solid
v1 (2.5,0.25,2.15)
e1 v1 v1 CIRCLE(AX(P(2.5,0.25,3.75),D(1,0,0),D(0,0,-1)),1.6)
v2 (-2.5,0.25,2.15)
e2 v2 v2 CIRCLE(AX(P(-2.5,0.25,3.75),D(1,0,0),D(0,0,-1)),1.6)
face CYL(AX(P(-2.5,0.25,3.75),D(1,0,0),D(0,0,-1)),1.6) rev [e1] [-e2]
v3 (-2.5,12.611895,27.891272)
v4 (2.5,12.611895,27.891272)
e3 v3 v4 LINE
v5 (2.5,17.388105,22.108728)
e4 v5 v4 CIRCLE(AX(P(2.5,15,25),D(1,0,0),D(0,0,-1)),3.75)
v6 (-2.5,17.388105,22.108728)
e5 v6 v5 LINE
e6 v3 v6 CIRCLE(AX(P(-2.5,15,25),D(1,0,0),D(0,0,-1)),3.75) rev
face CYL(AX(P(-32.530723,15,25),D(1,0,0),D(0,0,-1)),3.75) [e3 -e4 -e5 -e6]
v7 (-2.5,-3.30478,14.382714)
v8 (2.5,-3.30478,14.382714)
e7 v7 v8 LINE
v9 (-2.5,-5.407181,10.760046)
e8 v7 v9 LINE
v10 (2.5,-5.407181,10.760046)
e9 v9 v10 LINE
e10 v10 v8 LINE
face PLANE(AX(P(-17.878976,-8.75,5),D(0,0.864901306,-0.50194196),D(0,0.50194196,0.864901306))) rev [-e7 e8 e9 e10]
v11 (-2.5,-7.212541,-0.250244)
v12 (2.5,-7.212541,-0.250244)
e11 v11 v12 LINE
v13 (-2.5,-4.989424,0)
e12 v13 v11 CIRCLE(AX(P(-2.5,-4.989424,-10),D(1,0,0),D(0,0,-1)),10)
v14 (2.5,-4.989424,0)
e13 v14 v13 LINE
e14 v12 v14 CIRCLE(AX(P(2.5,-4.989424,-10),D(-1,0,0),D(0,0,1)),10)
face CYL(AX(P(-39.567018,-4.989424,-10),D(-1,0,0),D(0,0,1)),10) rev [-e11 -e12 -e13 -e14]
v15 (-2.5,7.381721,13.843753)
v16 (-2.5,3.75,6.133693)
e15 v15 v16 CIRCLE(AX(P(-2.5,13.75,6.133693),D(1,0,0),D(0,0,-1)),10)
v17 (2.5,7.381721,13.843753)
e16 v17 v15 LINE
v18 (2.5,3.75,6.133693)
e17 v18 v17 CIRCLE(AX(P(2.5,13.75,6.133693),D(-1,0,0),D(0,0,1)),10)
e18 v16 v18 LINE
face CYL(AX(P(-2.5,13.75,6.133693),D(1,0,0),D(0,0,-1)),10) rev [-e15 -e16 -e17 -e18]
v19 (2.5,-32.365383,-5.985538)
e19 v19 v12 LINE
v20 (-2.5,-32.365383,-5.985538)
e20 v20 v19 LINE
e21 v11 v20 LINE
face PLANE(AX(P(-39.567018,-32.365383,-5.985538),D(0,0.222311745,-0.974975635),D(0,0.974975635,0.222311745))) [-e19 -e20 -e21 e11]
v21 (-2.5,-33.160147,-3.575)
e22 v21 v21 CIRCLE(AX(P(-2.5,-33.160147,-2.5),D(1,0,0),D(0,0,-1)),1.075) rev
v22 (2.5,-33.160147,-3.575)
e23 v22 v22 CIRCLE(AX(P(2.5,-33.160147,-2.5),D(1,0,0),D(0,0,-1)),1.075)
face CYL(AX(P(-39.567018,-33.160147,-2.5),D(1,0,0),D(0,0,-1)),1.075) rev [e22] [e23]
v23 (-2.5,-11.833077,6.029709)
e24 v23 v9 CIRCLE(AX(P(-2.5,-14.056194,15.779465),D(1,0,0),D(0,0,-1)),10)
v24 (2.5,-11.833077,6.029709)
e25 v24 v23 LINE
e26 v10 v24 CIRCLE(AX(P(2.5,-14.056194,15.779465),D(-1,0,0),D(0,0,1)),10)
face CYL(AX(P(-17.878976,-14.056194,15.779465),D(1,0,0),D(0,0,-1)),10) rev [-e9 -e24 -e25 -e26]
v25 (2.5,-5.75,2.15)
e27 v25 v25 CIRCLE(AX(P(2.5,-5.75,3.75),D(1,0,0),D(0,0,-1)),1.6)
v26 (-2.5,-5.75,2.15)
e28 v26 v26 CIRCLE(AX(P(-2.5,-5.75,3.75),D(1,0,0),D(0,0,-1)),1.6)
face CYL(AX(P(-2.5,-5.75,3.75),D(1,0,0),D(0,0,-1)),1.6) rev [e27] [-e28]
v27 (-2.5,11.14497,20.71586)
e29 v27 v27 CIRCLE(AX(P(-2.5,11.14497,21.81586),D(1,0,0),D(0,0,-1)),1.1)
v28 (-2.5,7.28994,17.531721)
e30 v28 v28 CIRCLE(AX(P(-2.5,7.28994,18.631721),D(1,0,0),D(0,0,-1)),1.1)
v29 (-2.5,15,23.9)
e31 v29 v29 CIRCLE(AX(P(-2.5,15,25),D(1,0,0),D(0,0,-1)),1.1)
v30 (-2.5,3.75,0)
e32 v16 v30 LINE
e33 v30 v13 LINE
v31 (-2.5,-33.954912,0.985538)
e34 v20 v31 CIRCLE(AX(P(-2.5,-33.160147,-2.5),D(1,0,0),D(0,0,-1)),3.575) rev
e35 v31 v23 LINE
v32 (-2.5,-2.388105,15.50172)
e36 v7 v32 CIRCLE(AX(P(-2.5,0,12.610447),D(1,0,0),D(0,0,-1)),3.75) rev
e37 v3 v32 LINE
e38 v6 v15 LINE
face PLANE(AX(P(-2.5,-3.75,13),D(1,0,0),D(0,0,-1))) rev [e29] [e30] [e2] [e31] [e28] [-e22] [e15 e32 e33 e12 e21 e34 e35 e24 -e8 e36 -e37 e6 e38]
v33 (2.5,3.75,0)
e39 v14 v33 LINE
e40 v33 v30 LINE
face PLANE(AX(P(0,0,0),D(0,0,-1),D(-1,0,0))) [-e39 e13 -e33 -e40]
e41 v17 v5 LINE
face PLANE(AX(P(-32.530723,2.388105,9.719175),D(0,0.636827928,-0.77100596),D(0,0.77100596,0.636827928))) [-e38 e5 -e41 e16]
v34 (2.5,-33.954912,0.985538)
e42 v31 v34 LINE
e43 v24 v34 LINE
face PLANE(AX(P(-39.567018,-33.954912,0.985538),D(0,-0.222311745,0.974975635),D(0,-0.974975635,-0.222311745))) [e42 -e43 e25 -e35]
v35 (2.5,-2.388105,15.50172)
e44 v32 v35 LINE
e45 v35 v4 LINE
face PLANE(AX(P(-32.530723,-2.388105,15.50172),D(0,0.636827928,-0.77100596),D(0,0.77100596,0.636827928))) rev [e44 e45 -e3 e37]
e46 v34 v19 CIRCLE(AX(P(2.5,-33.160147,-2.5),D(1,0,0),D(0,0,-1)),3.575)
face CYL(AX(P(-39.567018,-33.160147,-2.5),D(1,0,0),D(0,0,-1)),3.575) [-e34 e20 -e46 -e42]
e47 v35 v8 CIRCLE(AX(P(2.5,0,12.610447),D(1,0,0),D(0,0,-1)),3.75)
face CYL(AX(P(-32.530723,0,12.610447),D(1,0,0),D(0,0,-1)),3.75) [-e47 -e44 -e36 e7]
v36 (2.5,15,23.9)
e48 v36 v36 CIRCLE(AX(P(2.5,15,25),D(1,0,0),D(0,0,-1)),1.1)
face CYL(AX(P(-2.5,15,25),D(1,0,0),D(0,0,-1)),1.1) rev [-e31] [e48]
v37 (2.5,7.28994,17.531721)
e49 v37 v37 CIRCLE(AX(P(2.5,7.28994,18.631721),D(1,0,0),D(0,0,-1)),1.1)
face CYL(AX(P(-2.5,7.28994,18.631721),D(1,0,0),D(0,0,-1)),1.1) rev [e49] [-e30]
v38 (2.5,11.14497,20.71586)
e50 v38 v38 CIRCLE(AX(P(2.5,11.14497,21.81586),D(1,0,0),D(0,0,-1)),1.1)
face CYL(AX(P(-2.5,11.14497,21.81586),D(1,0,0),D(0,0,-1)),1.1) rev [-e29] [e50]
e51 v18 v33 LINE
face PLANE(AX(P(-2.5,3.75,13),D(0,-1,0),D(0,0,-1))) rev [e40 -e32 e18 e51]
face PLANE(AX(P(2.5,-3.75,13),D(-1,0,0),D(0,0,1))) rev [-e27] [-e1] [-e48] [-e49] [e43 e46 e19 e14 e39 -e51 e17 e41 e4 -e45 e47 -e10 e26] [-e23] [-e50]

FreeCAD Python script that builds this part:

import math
import FreeCAD as App
import Part
import Sketcher

V = App.Vector
Q = App.Units.Quantity


def edges_at(feature, points):
    """Names of the edges that pass closest to the given points."""
    edges = feature.Shape.Edges
    near = lambda p: min(range(len(edges)), key=lambda i: edges[i].distToShape(Part.Vertex(*p))[0])
    return sorted({f"Edge{near(p) + 1}" for p in points})


def add_polygon(sketch, points):
    """Adds a closed chain of lines whose ends are joined by coincident constraints."""
    first, n = sketch.GeometryCount, len(points)
    for a, b in zip(points, points[1:] + points[:1]):
        sketch.addGeometry(Part.LineSegment(App.Vector(*a, 0), App.Vector(*b, 0)), False)
    for i in range(n):
        sketch.addConstraint(Sketcher.Constraint("Coincident", first + i, 2, first + (i + 1) % n, 1))

doc = App.newDocument("Part")
body = doc.addObject("PartDesign::Body", "Body")

# Sketch on XY plane
sketch1 = body.newObject("Sketcher::SketchObject", "Sketch")
sketch1.AttachmentSupport = (doc.getObject("XY_Plane"), [""])
sketch1.MapMode = "FlatFace"
add_polygon(sketch1, [(-2, 4), (-2, -4), (2, -4), (2, 4)])  # lines 0-3
sketch1.addConstraint(Sketcher.Constraint("Vertical", 0))
sketch1.addConstraint(Sketcher.Constraint("Horizontal", 1))
sketch1.addConstraint(Sketcher.Constraint("Vertical", 2))
sketch1.addConstraint(Sketcher.Constraint("Horizontal", 3))
sketch1.addConstraint(Sketcher.Constraint("Symmetric", 0, 2, 2, 2, -1, 1))
sketch1.addConstraint(Sketcher.Constraint("DistanceX", 1, 1, 1, 2, Q("5 mm")))
sketch1.addConstraint(Sketcher.Constraint("DistanceY", 0, 2, 0, 1, Q("7.5 mm")))
pad1 = body.newObject("PartDesign::Pad", "Pad")
pad1.Profile = sketch1
pad1.Length = 13

# Sketch on YZ plane
sketch2 = body.newObject("Sketcher::SketchObject", "Sketch001")
sketch2.AttachmentSupport = (doc.getObject("YZ_Plane"), [""])
sketch2.MapMode = "FlatFace"
sketch2.AttachmentOffset = App.Placement(V(0, 0, 2.5), App.Rotation())
sketch2.addGeometry(Part.LineSegment(V(12.6, 27.9, 0), V(-2.4, 15.5, 0)), False)
sketch2.addGeometry(Part.ArcOfCircle(Part.Circle(V(0, 12.6, 0), V(0, 0, 1), 3.8), math.radians(130), math.radians(310)), False)
sketch2.addGeometry(Part.LineSegment(V(2.4, 9.7, 0), V(17.4, 22.1, 0)), False)
sketch2.addGeometry(Part.ArcOfCircle(Part.Circle(V(15, 25, 0), V(0, 0, 1), 3.8), math.radians(-50), math.radians(130)), False)
sketch2.addConstraint(Sketcher.Constraint("Tangent", 0, 2, 1, 1))
sketch2.addConstraint(Sketcher.Constraint("Tangent", 1, 2, 2, 1))
sketch2.addConstraint(Sketcher.Constraint("Tangent", 2, 2, 3, 1))
sketch2.addConstraint(Sketcher.Constraint("Tangent", 3, 2, 0, 1))
sketch2.addConstraint(Sketcher.Constraint("Equal", 1, 3))
sketch2.addConstraint(Sketcher.Constraint("PointOnObject", 1, 3, -2))
sketch2.addConstraint(Sketcher.Constraint("Radius", 1, Q("3.75 mm")))
sketch2.addConstraint(Sketcher.Constraint("DistanceX", -1, 1, 3, 3, Q("15 mm")))
sketch2.addConstraint(Sketcher.Constraint("DistanceY", -1, 1, 3, 3, Q("25 mm")))
sketch2.addConstraint(Sketcher.Constraint("DistanceY", -1, 1, 0, 2, Q("15.50172 mm")))
pad2 = body.newObject("PartDesign::Pad", "Pad001")
pad2.Profile = sketch2
pad2.Length = 5
pad2.Reversed = True

# Sketch on YZ plane
sketch3 = body.newObject("Sketcher::SketchObject", "Sketch002")
sketch3.AttachmentSupport = (doc.getObject("YZ_Plane"), [""])
sketch3.MapMode = "FlatFace"
sketch3.AttachmentOffset = App.Placement(V(0, 0, 2.5), App.Rotation())
sketch3.addGeometry(Part.Circle(V(15, 25, 0), V(0, 0, 1), 1.1), False)
sketch3.addConstraint(Sketcher.Constraint("Diameter", 0, Q("2.2 mm")))
sketch3.addConstraint(Sketcher.Constraint("DistanceX", -1, 1, 0, 3, Q("15 mm")))
sketch3.addConstraint(Sketcher.Constraint("DistanceY", -1, 1, 0, 3, Q("25 mm")))
pocket1 = body.newObject("PartDesign::Pocket", "Pocket")
pocket1.Profile = sketch3
pocket1.Type = "ThroughAll"
doc.recompute()

datumline = body.newObject("PartDesign::Line", "DatumLine")
datumline.Placement = App.Placement(V(0, 0, 0), App.Rotation(V(0, 0, 1), V(0, -0.77100596, -0.636827928)))
linearpattern = body.newObject("PartDesign::LinearPattern", "LinearPattern")
linearpattern.Originals = [pocket1]
linearpattern.Direction = (datumline, [""])
linearpattern.Mode = "offset"
linearpattern.Offset = 5
linearpattern.Occurrences = 3
body.Tip = linearpattern

# Sketch on YZ plane
sketch4 = body.newObject("Sketcher::SketchObject", "Sketch003")
sketch4.AttachmentSupport = (doc.getObject("YZ_Plane"), [""])
sketch4.MapMode = "FlatFace"
sketch4.AttachmentOffset = App.Placement(V(0, 0, 2.5), App.Rotation())
sketch4.addGeometry(Part.Circle(V(0.2, 3.8, 0), V(0, 0, 1), 1.6), False)
sketch4.addConstraint(Sketcher.Constraint("Diameter", 0, Q("3.2 mm")))
sketch4.addConstraint(Sketcher.Constraint("DistanceX", -1, 1, 0, 3, Q("0.25 mm")))
sketch4.addConstraint(Sketcher.Constraint("DistanceY", -1, 1, 0, 3, Q("3.75 mm")))
pocket2 = body.newObject("PartDesign::Pocket", "Pocket001")
pocket2.Profile = sketch4
pocket2.Type = "ThroughAll"

# Sketch on YZ plane
sketch5 = body.newObject("Sketcher::SketchObject", "Sketch004")
sketch5.AttachmentSupport = (doc.getObject("YZ_Plane"), [""])
sketch5.MapMode = "FlatFace"
sketch5.AttachmentOffset = App.Placement(V(0, 0, 2.5), App.Rotation())
add_polygon(sketch5, [(-9, 0), (-4, 0), (-3, 14), (-9, 5)])  # lines 0-3
sketch5.addConstraint(Sketcher.Constraint("Horizontal", 0))
sketch5.addConstraint(Sketcher.Constraint("Vertical", 3))
sketch5.addConstraint(Sketcher.Constraint("PointOnObject", 0, 2, -1))
sketch5.addConstraint(Sketcher.Constraint("Equal", 0, 3))
sketch5.addConstraint(Sketcher.Constraint("DistanceX", 0, 1, 0, 2, Q("5 mm")))
sketch5.addConstraint(Sketcher.Constraint("DistanceX", 0, 2, -1, 1, Q("3.75 mm")))
sketch5.addConstraint(Sketcher.Constraint("DistanceX", 1, 2, -1, 1, Q("3.30478 mm")))
sketch5.addConstraint(Sketcher.Constraint("Distance", 1, Q("14.389604 mm")))
pad3 = body.newObject("PartDesign::Pad", "Pad002")
pad3.Profile = sketch5
pad3.Length = 5
pad3.Reversed = True
doc.recompute()

linearpattern2 = body.newObject("PartDesign::LinearPattern", "LinearPattern001")
linearpattern2.Originals = [pocket2]
linearpattern2.Direction = (doc.getObject("Y_Axis"), [""])
linearpattern2.Mode = "offset"
linearpattern2.Offset = 6
linearpattern2.Occurrences = 2
linearpattern2.Reversed = True
body.Tip = linearpattern2

# Sketch on YZ plane
sketch6 = body.newObject("Sketcher::SketchObject", "Sketch005")
sketch6.AttachmentSupport = (doc.getObject("YZ_Plane"), [""])
sketch6.MapMode = "FlatFace"
sketch6.AttachmentOffset = App.Placement(V(0, 0, 2.5), App.Rotation())
sketch6.addGeometry(Part.LineSegment(V(-6.5, 7.2, 0), V(-34, 1, 0)), False)
sketch6.addGeometry(Part.ArcOfCircle(Part.Circle(V(-33.2, -2.5, 0), V(0, 0, 1), 3.6), math.radians(103), math.radians(283)), False)
sketch6.addGeometry(Part.LineSegment(V(-32.4, -6, 0), V(-5, 0.3, 0)), False)
sketch6.addGeometry(Part.ArcOfCircle(Part.Circle(V(-5.8, 3.8, 0), V(0, 0, 1), 3.6), math.radians(-77), math.radians(103)), False)
sketch6.addGeometry(Part.Circle(V(-33.2, -2.5, 0), V(0, 0, 1), 1.1), False)
sketch6.addGeometry(Part.Circle(V(-5.8, 3.8, 0), V(0, 0, 1), 1.6), False)
sketch6.addConstraint(Sketcher.Constraint("Tangent", 0, 2, 1, 1))
sketch6.addConstraint(Sketcher.Constraint("Tangent", 1, 2, 2, 1))
sketch6.addConstraint(Sketcher.Constraint("Tangent", 2, 2, 3, 1))
sketch6.addConstraint(Sketcher.Constraint("Tangent", 3, 2, 0, 1))
sketch6.addConstraint(Sketcher.Constraint("Coincident", 4, 3, 1, 3))
sketch6.addConstraint(Sketcher.Constraint("Coincident", 5, 3, 3, 3))
sketch6.addConstraint(Sketcher.Constraint("Equal", 1, 3))
sketch6.addConstraint(Sketcher.Constraint("Diameter", 5, Q("3.2 mm")))
sketch6.addConstraint(Sketcher.Constraint("Diameter", 4, Q("2.15 mm")))
sketch6.addConstraint(Sketcher.Constraint("Radius", 1, Q("3.575 mm")))
sketch6.addConstraint(Sketcher.Constraint("DistanceY", 1, 3, -1, 1, Q("2.5 mm")))
sketch6.addConstraint(Sketcher.Constraint("DistanceX", 3, 3, -1, 1, Q("5.75 mm")))
sketch6.addConstraint(Sketcher.Constraint("DistanceY", -1, 1, 3, 3, Q("3.75 mm")))
sketch6.addConstraint(Sketcher.Constraint("DistanceX", 0, 2, -1, 1, Q("33.954912 mm")))
pad4 = body.newObject("PartDesign::Pad", "Pad003")
pad4.Profile = sketch6
pad4.Length = 5
pad4.Reversed = True
doc.recompute()

fillet = body.newObject("PartDesign::Fillet", "Fillet")
fillet.Base = (pad4, edges_at(pad4, [(0, 3.75, 10.844), (0, -7.591, 6.997), (0, -6.115, 0)]))
fillet.Radius = 10

doc.recompute()
